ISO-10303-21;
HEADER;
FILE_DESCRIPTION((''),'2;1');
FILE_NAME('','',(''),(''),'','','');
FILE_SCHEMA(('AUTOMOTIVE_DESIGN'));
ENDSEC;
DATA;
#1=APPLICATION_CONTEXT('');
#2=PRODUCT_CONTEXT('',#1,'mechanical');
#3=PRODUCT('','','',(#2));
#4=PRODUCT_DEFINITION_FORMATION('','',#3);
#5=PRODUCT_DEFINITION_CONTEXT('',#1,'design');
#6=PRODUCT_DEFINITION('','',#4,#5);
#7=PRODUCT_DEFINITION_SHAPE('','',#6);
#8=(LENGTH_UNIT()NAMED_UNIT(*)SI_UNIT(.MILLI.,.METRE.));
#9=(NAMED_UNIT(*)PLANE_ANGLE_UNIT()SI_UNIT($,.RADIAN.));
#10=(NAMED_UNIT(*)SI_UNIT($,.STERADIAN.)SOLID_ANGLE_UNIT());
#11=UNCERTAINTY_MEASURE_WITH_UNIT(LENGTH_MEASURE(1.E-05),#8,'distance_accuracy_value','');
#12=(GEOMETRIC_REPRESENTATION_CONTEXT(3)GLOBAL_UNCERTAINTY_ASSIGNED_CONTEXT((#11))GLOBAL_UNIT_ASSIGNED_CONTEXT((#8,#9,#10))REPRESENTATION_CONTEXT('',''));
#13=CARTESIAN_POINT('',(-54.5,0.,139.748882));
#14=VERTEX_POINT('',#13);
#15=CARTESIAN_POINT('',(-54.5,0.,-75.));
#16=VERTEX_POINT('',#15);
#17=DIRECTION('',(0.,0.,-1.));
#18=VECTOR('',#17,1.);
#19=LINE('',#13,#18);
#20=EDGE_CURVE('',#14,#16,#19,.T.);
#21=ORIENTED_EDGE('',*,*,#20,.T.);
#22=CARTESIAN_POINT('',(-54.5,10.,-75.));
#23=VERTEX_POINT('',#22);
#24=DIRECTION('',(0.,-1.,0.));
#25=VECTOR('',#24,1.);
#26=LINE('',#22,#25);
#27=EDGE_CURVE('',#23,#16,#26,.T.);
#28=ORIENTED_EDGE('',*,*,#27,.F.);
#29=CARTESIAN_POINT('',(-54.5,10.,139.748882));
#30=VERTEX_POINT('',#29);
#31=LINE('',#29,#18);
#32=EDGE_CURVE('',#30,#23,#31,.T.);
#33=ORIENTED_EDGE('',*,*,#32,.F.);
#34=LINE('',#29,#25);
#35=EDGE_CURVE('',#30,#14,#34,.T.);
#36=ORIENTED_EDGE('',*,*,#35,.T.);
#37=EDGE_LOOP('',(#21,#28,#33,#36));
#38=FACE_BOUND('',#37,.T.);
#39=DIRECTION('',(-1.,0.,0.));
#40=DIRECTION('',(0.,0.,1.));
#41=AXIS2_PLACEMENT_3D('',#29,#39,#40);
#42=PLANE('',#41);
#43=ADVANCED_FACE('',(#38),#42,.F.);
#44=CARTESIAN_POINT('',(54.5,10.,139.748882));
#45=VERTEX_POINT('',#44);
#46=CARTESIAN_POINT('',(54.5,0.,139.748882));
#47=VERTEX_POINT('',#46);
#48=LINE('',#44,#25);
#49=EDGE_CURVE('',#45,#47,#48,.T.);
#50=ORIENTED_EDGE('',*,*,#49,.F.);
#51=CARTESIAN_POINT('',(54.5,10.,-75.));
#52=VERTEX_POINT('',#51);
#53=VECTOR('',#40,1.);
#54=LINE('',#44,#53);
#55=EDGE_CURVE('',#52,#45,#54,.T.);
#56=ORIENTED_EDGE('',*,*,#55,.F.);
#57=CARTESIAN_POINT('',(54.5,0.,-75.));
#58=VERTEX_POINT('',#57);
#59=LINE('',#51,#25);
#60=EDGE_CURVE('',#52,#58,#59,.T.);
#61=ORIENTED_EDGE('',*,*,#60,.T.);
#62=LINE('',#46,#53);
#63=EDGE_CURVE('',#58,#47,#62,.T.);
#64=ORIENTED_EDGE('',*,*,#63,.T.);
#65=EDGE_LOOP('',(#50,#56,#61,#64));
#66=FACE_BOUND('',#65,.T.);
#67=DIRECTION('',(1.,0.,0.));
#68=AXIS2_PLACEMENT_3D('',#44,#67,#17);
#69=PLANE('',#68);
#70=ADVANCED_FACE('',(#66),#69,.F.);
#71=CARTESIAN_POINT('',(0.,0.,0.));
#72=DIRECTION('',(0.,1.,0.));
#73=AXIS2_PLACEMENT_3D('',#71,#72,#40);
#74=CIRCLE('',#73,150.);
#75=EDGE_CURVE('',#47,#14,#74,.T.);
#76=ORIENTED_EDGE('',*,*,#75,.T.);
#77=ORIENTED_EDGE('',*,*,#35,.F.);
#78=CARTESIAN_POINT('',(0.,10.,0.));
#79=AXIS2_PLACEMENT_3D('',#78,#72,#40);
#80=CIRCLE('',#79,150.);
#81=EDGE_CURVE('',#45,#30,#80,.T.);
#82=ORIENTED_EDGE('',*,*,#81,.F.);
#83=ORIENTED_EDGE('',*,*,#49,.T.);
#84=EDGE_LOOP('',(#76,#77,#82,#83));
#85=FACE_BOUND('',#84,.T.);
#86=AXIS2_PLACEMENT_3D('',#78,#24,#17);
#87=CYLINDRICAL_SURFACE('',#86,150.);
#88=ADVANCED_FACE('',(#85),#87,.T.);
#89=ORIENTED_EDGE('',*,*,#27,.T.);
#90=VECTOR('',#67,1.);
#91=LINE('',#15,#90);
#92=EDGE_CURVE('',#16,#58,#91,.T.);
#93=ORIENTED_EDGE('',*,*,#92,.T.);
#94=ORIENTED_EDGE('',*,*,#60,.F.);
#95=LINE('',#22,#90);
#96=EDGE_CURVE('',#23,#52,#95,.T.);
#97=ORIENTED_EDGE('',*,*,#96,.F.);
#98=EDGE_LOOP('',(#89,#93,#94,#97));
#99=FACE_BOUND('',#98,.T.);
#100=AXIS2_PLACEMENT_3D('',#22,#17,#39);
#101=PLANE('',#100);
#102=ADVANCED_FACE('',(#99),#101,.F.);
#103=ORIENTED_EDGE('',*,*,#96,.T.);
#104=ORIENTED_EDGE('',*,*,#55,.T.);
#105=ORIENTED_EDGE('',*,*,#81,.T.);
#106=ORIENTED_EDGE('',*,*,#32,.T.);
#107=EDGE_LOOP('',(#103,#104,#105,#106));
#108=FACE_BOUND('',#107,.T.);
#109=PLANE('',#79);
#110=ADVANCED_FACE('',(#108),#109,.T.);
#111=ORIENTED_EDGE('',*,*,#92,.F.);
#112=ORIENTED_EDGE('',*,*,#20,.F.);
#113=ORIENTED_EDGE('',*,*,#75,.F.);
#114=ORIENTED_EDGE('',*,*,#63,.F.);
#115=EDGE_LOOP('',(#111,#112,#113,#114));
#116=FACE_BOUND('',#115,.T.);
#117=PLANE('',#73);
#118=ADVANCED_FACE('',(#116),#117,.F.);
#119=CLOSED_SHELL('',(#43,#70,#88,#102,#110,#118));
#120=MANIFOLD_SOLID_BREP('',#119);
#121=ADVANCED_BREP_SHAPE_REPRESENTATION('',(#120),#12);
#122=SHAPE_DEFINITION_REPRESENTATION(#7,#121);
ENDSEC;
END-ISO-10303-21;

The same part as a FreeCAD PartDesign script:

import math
import FreeCAD as App
import Part
import Sketcher

V = App.Vector

doc = App.newDocument("Part")
body = doc.addObject("PartDesign::Body", "Body")

# Sketch on XZ plane
sketch1 = body.newObject("Sketcher::SketchObject", "Sketch")
sketch1.AttachmentSupport = (doc.getObject("XZ_Plane"), [""])
sketch1.MapMode = "FlatFace"
sketch1.addGeometry(Part.LineSegment(V(-54, 140, 0), V(-54, -75, 0)), False)
sketch1.addGeometry(Part.LineSegment(V(-54, -75, 0), V(54, -75, 0)), False)
sketch1.addGeometry(Part.LineSegment(V(54, -75, 0), V(54, 140, 0)), False)
sketch1.addGeometry(Part.ArcOfCircle(Part.Circle(V(0, 0, 0), V(0, 0, 1), 150), math.radians(111), math.radians(429)), False)
sketch1.addConstraint(Sketcher.Constraint("Coincident", 0, 2, 1, 1))
sketch1.addConstraint(Sketcher.Constraint("Coincident", 1, 2, 2, 1))
sketch1.addConstraint(Sketcher.Constraint("Coincident", 2, 2, 3, 2))
sketch1.addConstraint(Sketcher.Constraint("Coincident", 3, 1, 0, 1))
sketch1.addConstraint(Sketcher.Constraint("Vertical", 0))
sketch1.addConstraint(Sketcher.Constraint("Horizontal", 1))
sketch1.addConstraint(Sketcher.Constraint("Vertical", 2))
sketch1.addConstraint(Sketcher.Constraint("Coincident", 3, 3, -1, 1))
sketch1.addConstraint(Sketcher.Constraint("Horizontal", 2, 2, 3, 1))
sketch1.addConstraint(Sketcher.Constraint("Radius", 3, 150.0))
sketch1.addConstraint(Sketcher.Constraint("DistanceX", 1, 1, 1, 2, 109.0))
sketch1.addConstraint(Sketcher.Constraint("DistanceY", 0, 2, -1, 1, 75.0))
pad1 = body.newObject("PartDesign::Pad", "Pad")
pad1.Profile = sketch1
pad1.Length = 10
pad1.Reversed = True

doc.recompute()
